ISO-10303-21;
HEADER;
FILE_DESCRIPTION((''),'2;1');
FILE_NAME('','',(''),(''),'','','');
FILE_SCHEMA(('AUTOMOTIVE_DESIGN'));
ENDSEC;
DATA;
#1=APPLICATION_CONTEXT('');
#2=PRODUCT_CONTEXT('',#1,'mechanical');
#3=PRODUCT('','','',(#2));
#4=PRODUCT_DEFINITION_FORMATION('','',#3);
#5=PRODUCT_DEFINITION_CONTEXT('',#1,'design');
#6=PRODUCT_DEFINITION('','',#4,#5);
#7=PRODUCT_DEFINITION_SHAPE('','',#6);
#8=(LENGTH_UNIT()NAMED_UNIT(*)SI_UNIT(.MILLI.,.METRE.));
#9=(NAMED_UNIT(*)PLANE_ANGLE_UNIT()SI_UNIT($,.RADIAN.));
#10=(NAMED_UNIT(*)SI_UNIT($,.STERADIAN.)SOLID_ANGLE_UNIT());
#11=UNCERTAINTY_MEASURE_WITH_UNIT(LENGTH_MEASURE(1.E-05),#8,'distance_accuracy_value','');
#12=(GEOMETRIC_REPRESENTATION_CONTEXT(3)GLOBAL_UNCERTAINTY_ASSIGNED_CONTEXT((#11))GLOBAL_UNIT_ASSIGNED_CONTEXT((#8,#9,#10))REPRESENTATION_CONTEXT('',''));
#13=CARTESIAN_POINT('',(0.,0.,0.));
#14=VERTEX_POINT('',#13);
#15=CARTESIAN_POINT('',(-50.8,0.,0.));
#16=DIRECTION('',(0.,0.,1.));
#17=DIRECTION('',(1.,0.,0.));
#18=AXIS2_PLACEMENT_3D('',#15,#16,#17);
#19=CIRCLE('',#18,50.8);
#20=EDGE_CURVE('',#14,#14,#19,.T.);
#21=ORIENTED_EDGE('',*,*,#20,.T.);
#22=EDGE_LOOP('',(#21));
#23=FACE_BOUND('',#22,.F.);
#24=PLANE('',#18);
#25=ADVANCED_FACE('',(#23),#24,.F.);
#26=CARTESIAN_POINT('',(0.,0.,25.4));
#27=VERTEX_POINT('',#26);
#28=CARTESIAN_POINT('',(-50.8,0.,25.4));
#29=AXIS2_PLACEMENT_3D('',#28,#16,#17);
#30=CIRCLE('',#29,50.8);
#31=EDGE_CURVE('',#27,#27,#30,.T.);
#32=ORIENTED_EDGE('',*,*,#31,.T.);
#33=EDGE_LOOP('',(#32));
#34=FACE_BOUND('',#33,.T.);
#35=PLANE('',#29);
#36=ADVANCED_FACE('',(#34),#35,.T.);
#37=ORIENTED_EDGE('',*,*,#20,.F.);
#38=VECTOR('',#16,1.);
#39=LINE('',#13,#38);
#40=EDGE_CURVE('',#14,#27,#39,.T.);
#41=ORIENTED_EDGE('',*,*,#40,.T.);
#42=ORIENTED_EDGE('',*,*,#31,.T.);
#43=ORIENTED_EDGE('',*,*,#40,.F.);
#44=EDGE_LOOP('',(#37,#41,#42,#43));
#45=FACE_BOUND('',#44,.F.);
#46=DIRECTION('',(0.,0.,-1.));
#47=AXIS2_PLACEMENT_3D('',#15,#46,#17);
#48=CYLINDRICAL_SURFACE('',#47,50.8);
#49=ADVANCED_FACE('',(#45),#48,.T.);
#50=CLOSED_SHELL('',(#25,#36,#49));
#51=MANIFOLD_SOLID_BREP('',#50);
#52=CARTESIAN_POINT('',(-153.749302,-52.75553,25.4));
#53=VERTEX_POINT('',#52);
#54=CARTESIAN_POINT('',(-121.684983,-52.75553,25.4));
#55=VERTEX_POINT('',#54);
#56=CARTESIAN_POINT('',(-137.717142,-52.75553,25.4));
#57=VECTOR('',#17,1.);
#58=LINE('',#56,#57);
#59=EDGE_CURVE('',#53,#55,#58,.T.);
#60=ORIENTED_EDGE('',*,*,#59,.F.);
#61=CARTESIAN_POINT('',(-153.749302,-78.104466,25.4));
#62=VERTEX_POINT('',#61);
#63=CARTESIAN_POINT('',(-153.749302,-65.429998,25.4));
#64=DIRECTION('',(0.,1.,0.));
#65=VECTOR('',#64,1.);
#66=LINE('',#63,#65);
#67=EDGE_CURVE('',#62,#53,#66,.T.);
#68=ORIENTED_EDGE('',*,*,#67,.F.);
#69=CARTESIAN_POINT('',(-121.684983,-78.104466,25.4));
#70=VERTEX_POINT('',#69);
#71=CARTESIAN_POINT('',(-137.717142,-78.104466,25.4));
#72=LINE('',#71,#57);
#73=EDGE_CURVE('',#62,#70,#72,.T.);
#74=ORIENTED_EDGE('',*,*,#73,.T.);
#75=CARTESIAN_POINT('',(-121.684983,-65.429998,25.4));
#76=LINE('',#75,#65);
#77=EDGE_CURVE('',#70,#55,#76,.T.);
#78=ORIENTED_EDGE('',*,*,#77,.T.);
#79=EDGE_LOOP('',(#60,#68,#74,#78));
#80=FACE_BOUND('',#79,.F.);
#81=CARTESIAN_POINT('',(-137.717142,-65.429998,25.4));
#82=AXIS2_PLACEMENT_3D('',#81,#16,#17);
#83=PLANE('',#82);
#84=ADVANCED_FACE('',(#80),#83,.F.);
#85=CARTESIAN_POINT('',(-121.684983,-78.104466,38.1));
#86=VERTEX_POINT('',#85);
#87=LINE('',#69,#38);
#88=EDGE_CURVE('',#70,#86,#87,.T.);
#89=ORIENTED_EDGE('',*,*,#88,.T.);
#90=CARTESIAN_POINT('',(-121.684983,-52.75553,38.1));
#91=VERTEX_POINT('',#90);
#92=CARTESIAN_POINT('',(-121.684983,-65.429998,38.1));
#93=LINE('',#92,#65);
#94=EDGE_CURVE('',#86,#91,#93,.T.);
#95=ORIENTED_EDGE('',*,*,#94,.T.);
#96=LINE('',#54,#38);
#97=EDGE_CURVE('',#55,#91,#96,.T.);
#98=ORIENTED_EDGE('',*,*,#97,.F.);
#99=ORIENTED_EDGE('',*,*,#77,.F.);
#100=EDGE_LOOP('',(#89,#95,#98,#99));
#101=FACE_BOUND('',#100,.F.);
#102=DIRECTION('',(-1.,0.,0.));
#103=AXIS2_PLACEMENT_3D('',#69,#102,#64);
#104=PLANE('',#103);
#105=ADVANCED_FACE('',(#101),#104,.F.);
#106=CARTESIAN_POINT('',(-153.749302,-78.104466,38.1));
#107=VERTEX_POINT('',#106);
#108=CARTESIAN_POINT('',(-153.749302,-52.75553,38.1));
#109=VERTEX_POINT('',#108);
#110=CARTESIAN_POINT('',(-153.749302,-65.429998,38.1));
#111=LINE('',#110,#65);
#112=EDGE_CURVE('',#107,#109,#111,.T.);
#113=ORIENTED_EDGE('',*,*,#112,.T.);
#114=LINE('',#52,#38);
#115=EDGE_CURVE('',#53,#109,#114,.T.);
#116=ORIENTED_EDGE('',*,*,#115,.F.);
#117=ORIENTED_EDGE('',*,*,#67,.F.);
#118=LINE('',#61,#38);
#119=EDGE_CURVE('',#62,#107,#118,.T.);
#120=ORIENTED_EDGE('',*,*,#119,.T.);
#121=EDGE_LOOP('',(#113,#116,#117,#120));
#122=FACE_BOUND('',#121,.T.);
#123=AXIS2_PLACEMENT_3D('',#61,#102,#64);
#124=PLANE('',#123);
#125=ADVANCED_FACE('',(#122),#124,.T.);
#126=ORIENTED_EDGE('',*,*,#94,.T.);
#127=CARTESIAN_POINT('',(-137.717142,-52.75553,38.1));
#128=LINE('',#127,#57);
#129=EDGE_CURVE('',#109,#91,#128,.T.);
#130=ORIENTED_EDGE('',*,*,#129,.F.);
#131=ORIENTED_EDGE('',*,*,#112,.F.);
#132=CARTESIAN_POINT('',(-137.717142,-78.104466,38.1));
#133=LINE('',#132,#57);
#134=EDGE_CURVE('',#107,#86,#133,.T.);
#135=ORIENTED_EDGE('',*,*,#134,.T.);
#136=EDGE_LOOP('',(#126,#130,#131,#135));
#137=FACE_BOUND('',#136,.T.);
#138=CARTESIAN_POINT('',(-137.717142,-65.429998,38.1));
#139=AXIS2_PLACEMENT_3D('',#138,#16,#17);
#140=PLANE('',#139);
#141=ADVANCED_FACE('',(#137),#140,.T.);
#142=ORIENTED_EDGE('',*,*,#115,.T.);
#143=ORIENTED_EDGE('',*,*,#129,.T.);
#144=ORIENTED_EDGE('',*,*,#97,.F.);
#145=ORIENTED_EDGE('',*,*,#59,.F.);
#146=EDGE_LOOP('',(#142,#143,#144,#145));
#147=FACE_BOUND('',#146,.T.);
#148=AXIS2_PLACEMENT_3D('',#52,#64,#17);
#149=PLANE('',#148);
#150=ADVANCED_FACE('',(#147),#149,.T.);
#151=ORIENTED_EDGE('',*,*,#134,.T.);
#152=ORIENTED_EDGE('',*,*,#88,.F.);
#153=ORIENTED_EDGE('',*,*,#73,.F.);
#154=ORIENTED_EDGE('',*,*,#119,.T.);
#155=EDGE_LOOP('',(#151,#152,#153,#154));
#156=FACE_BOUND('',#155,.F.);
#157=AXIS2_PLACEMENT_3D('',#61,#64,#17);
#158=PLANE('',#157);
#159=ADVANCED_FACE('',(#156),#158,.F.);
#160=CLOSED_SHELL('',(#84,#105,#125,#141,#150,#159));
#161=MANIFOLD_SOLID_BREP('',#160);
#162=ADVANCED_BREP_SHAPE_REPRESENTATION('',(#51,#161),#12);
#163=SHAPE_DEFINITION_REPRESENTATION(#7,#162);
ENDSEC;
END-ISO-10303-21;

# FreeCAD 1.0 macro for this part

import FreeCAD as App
import Part
import Sketcher

V = App.Vector
Q = App.Units.Quantity


def add_polygon(sketch, points):
    """Adds a closed chain of lines whose ends are joined by coincident constraints."""
    first, n = sketch.GeometryCount, len(points)
    for a, b in zip(points, points[1:] + points[:1]):
        sketch.addGeometry(Part.LineSegment(App.Vector(*a, 0), App.Vector(*b, 0)), False)
    for i in range(n):
        sketch.addConstraint(Sketcher.Constraint("Coincident", first + i, 2, first + (i + 1) % n, 1))

doc = App.newDocument("Part")
body = doc.addObject("PartDesign::Body", "Body")

# Sketch on XY plane
sketch1 = body.newObject("Sketcher::SketchObject", "Sketch")
sketch1.AttachmentSupport = (doc.getObject("XY_Plane"), [""])
sketch1.MapMode = "FlatFace"
sketch1.addGeometry(Part.Circle(V(-50.8, 0, 0), V(0, 0, 1), 50.8), False)
sketch1.addConstraint(Sketcher.Constraint("PointOnObject", 0, 3, -1))
sketch1.addConstraint(Sketcher.Constraint("Diameter", 0, Q("4 in")))
sketch1.addConstraint(Sketcher.Constraint("DistanceX", 0, 3, -1, 1, Q("2 in")))
pad1 = body.newObject("PartDesign::Pad", "Pad")
pad1.Profile = sketch1
pad1.Length = Q("1 in")
body2 = doc.addObject("PartDesign::Body", "Body001")

# Sketch on XY plane
sketch2 = body2.newObject("Sketcher::SketchObject", "Sketch001")
sketch2.AttachmentSupport = (doc.getObject("XY_Plane001"), [""])
sketch2.MapMode = "FlatFace"
sketch2.AttachmentOffset = App.Placement(V(0, 0, 1 * 25.4), App.Rotation())
add_polygon(sketch2, [(-153.749302, -52.75553), (-153.749302, -78.104466), (-121.684983, -78.104466), (-121.684983, -52.75553)])  # lines 0-3
sketch2.addConstraint(Sketcher.Constraint("Vertical", 0))
sketch2.addConstraint(Sketcher.Constraint("Horizontal", 1))
sketch2.addConstraint(Sketcher.Constraint("Vertical", 2))
sketch2.addConstraint(Sketcher.Constraint("Horizontal", 3))
sketch2.addConstraint(Sketcher.Constraint("DistanceX", 1, 1, 1, 2, 32.064319))
sketch2.addConstraint(Sketcher.Constraint("DistanceX", 0, 2, -1, 1, 153.749302))
sketch2.addConstraint(Sketcher.Constraint("DistanceY", 0, 2, 0, 1, 25.348935))
sketch2.addConstraint(Sketcher.Constraint("DistanceY", 2, 2, -1, 1, 52.75553))
pad2 = body2.newObject("PartDesign::Pad", "Pad001")
pad2.Profile = sketch2
pad2.Length = Q("0.5 in")

doc.recompute()
